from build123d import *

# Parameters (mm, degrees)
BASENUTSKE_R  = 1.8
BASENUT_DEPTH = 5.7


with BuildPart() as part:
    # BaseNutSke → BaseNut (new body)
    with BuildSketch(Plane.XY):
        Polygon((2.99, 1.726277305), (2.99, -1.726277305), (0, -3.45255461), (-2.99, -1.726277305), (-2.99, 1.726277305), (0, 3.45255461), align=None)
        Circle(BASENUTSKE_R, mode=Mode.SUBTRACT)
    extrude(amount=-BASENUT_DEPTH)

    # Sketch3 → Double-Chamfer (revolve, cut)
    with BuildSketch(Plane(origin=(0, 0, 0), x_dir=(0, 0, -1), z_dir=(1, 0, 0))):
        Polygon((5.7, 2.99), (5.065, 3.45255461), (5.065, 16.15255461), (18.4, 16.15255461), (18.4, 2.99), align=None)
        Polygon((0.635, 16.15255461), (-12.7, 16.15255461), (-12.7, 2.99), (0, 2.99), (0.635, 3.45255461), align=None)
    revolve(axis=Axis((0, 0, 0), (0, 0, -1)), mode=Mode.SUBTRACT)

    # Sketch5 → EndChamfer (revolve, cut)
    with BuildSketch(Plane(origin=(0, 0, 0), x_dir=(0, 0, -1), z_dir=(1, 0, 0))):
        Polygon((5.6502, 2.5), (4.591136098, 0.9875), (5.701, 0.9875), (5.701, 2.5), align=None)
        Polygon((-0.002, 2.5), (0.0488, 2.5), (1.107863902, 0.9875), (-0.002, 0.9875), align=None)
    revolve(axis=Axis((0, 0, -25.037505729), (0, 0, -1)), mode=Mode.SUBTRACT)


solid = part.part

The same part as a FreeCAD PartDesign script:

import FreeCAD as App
import Part
import Sketcher
from FreeCAD import Vector
Q = App.Units.Quantity


def add_polygon(sketch, points):
    """Adds a closed chain of lines whose ends are joined by coincident constraints."""
    first, n = sketch.GeometryCount, len(points)
    for a, b in zip(points, points[1:] + points[:1]):
        sketch.addGeometry(Part.LineSegment(App.Vector(*a, 0), App.Vector(*b, 0)), False)
    for i in range(n):
        sketch.addConstraint(Sketcher.Constraint("Coincident", first + i, 2, first + (i + 1) % n, 1))

doc = App.newDocument("Part")
body = doc.addObject("PartDesign::Body", "Body")

# Sketch on XY plane
sketch1 = doc.addObject("Sketcher::SketchObject", "Sketch")
body.addObject(sketch1)
sketch1.AttachmentSupport = (doc.XY_Plane, [""])
sketch1.MapMode = "FlatFace"
add_polygon(sketch1, [(3, -1.7), (3, 1.7), (0, 3.5), (-3, 1.7), (-3, -1.7), (0, -3.5)])  # lines 0-5
sketch1.addGeometry(Part.Circle(Vector(0, 0, 0), Vector(0, 0, 1), 1.8), False)  # 6
sketch1.addConstraint(Sketcher.Constraint("Vertical", 0))
sketch1.addConstraint(Sketcher.Constraint("Vertical", 3))
sketch1.addConstraint(Sketcher.Constraint("Coincident", 6, 3, -1, 1))
sketch1.addConstraint(Sketcher.Constraint("Symmetric", 0, 2, 3, 2, -1, 1))
sketch1.addConstraint(Sketcher.Constraint("Symmetric", 1, 2, 4, 2, -1, 1))
sketch1.addConstraint(Sketcher.Constraint("PointOnObject", 1, 2, -2))
sketch1.addConstraint(Sketcher.Constraint("Parallel", 2, 5))
sketch1.addConstraint(Sketcher.Constraint("Horizontal", 0, 2, 2, 2))
sketch1.addConstraint(Sketcher.Constraint("Angle", 1, Q("150 deg")))
sketch1.addConstraint(Sketcher.Constraint("Diameter", 6, Q("3.6 mm")))
sketch1.addConstraint(Sketcher.Constraint("DistanceX", -1, 1, 0, 2, Q("2.99 mm")))
sketch1.addConstraint(Sketcher.Constraint("DistanceY", 0, 1, 0, 2, Q("3.452555 mm")))
pad1 = doc.addObject("PartDesign::Pad", "Pad")
body.addObject(pad1)
pad1.Profile = sketch1
pad1.Length = 5.7
pad1.Reversed = True

# Sketch on YZ plane
sketch2 = doc.addObject("Sketcher::SketchObject", "Sketch001")
body.addObject(sketch2)
sketch2.AttachmentSupport = (doc.YZ_Plane, [""])
sketch2.MapMode = "FlatFace"
add_polygon(sketch2, [(3.5, -5.1), (3, -5.7), (3, -18.4), (16.2, -18.4), (16.2, -5.1)])  # lines 0-4
add_polygon(sketch2, [(16.2, -0.6), (16.2, 12.7), (3, 12.7), (3, 0), (3.5, -0.6)])  # lines 5-9
sketch2.addConstraint(Sketcher.Constraint("Vertical", 1))
sketch2.addConstraint(Sketcher.Constraint("Horizontal", 2))
sketch2.addConstraint(Sketcher.Constraint("Vertical", 3))
sketch2.addConstraint(Sketcher.Constraint("Horizontal", 4))
sketch2.addConstraint(Sketcher.Constraint("Vertical", 5))
sketch2.addConstraint(Sketcher.Constraint("Horizontal", 6))
sketch2.addConstraint(Sketcher.Constraint("Vertical", 7))
sketch2.addConstraint(Sketcher.Constraint("Horizontal", 9))
sketch2.addConstraint(Sketcher.Constraint("PointOnObject", 7, 2, -1))
sketch2.addConstraint(Sketcher.Constraint("Vertical", 3, 2, 5, 2))
sketch2.addConstraint(Sketcher.Constraint("Vertical", 1, 2, 6, 2))
sketch2.addConstraint(Sketcher.Constraint("Vertical", 4, 2, 8, 2))
sketch2.addConstraint(Sketcher.Constraint("Equal", 9, 1))
sketch2.addConstraint(Sketcher.Constraint("Equal", 3, 5))
sketch2.addConstraint(Sketcher.Constraint("Equal", 1, 7))
sketch2.addConstraint(Sketcher.Constraint("DistanceX", 4, 2, 4, 1, Q("0.5 in")))
sketch2.addConstraint(Sketcher.Constraint("DistanceY", 3, 1, 3, 2, Q("0.525 in")))
sketch2.addConstraint(Sketcher.Constraint("DistanceX", -1, 1, 0, 2, Q("2.99 mm")))
sketch2.addConstraint(Sketcher.Constraint("DistanceY", 0, 2, -1, 1, Q("5.7 mm")))
sketch2.addConstraint(Sketcher.Constraint("Distance", 0, Q("0.785609 mm")))
groove = doc.addObject("PartDesign::Groove", "Groove")
body.addObject(groove)
groove.Profile = sketch2
groove.ReferenceAxis = (sketch2, ["V_Axis"])
groove.Angle = 360

# Sketch on YZ plane
sketch3 = doc.addObject("Sketcher::SketchObject", "Sketch002")
body.addObject(sketch3)
sketch3.AttachmentSupport = (doc.YZ_Plane, [""])
sketch3.MapMode = "FlatFace"
add_polygon(sketch3, [(2.5, -5.65), (0.99, -4.59), (0.99, -5.7), (2.5, -5.7)])  # lines 0-3
add_polygon(sketch3, [(2.5, -0.05), (2.5, 0), (0.99, 0), (0.99, -1.11)])  # lines 4-7
sketch3.addConstraint(Sketcher.Constraint("Vertical", 1))
sketch3.addConstraint(Sketcher.Constraint("Horizontal", 2))
sketch3.addConstraint(Sketcher.Constraint("Vertical", 3))
sketch3.addConstraint(Sketcher.Constraint("Vertical", 4))
sketch3.addConstraint(Sketcher.Constraint("Horizontal", 5))
sketch3.addConstraint(Sketcher.Constraint("Vertical", 6))
sketch3.addConstraint(Sketcher.Constraint("Vertical", 3, 2, 4, 2))
sketch3.addConstraint(Sketcher.Constraint("Vertical", 1, 2, 5, 2))
sketch3.addConstraint(Sketcher.Constraint("Equal", 3, 4))
sketch3.addConstraint(Sketcher.Constraint("Equal", 1, 6))
sketch3.addConstraint(Sketcher.Constraint("Angle", 0, Q("145 deg")))
sketch3.addConstraint(Sketcher.Constraint("DistanceY", 3, 1, 3, 2, Q("0.002 in")))
sketch3.addConstraint(Sketcher.Constraint("DistanceX", 2, 1, 2, 2, Q("1.5125 mm")))
sketch3.addConstraint(Sketcher.Constraint("DistanceX", -1, 1, 0, 2, Q("0.9875 mm")))
sketch3.addConstraint(Sketcher.Constraint("DistanceY", 1, 2, -1, 1, Q("5.701 mm")))
sketch3.addConstraint(Sketcher.Constraint("DistanceY", -1, 1, 4, 2, Q("0.002 mm")))
groove2 = doc.addObject("PartDesign::Groove", "Groove001")
body.addObject(groove2)
groove2.Profile = sketch3
groove2.ReferenceAxis = (sketch3, ["V_Axis"])
groove2.Angle = 360

doc.recompute()
